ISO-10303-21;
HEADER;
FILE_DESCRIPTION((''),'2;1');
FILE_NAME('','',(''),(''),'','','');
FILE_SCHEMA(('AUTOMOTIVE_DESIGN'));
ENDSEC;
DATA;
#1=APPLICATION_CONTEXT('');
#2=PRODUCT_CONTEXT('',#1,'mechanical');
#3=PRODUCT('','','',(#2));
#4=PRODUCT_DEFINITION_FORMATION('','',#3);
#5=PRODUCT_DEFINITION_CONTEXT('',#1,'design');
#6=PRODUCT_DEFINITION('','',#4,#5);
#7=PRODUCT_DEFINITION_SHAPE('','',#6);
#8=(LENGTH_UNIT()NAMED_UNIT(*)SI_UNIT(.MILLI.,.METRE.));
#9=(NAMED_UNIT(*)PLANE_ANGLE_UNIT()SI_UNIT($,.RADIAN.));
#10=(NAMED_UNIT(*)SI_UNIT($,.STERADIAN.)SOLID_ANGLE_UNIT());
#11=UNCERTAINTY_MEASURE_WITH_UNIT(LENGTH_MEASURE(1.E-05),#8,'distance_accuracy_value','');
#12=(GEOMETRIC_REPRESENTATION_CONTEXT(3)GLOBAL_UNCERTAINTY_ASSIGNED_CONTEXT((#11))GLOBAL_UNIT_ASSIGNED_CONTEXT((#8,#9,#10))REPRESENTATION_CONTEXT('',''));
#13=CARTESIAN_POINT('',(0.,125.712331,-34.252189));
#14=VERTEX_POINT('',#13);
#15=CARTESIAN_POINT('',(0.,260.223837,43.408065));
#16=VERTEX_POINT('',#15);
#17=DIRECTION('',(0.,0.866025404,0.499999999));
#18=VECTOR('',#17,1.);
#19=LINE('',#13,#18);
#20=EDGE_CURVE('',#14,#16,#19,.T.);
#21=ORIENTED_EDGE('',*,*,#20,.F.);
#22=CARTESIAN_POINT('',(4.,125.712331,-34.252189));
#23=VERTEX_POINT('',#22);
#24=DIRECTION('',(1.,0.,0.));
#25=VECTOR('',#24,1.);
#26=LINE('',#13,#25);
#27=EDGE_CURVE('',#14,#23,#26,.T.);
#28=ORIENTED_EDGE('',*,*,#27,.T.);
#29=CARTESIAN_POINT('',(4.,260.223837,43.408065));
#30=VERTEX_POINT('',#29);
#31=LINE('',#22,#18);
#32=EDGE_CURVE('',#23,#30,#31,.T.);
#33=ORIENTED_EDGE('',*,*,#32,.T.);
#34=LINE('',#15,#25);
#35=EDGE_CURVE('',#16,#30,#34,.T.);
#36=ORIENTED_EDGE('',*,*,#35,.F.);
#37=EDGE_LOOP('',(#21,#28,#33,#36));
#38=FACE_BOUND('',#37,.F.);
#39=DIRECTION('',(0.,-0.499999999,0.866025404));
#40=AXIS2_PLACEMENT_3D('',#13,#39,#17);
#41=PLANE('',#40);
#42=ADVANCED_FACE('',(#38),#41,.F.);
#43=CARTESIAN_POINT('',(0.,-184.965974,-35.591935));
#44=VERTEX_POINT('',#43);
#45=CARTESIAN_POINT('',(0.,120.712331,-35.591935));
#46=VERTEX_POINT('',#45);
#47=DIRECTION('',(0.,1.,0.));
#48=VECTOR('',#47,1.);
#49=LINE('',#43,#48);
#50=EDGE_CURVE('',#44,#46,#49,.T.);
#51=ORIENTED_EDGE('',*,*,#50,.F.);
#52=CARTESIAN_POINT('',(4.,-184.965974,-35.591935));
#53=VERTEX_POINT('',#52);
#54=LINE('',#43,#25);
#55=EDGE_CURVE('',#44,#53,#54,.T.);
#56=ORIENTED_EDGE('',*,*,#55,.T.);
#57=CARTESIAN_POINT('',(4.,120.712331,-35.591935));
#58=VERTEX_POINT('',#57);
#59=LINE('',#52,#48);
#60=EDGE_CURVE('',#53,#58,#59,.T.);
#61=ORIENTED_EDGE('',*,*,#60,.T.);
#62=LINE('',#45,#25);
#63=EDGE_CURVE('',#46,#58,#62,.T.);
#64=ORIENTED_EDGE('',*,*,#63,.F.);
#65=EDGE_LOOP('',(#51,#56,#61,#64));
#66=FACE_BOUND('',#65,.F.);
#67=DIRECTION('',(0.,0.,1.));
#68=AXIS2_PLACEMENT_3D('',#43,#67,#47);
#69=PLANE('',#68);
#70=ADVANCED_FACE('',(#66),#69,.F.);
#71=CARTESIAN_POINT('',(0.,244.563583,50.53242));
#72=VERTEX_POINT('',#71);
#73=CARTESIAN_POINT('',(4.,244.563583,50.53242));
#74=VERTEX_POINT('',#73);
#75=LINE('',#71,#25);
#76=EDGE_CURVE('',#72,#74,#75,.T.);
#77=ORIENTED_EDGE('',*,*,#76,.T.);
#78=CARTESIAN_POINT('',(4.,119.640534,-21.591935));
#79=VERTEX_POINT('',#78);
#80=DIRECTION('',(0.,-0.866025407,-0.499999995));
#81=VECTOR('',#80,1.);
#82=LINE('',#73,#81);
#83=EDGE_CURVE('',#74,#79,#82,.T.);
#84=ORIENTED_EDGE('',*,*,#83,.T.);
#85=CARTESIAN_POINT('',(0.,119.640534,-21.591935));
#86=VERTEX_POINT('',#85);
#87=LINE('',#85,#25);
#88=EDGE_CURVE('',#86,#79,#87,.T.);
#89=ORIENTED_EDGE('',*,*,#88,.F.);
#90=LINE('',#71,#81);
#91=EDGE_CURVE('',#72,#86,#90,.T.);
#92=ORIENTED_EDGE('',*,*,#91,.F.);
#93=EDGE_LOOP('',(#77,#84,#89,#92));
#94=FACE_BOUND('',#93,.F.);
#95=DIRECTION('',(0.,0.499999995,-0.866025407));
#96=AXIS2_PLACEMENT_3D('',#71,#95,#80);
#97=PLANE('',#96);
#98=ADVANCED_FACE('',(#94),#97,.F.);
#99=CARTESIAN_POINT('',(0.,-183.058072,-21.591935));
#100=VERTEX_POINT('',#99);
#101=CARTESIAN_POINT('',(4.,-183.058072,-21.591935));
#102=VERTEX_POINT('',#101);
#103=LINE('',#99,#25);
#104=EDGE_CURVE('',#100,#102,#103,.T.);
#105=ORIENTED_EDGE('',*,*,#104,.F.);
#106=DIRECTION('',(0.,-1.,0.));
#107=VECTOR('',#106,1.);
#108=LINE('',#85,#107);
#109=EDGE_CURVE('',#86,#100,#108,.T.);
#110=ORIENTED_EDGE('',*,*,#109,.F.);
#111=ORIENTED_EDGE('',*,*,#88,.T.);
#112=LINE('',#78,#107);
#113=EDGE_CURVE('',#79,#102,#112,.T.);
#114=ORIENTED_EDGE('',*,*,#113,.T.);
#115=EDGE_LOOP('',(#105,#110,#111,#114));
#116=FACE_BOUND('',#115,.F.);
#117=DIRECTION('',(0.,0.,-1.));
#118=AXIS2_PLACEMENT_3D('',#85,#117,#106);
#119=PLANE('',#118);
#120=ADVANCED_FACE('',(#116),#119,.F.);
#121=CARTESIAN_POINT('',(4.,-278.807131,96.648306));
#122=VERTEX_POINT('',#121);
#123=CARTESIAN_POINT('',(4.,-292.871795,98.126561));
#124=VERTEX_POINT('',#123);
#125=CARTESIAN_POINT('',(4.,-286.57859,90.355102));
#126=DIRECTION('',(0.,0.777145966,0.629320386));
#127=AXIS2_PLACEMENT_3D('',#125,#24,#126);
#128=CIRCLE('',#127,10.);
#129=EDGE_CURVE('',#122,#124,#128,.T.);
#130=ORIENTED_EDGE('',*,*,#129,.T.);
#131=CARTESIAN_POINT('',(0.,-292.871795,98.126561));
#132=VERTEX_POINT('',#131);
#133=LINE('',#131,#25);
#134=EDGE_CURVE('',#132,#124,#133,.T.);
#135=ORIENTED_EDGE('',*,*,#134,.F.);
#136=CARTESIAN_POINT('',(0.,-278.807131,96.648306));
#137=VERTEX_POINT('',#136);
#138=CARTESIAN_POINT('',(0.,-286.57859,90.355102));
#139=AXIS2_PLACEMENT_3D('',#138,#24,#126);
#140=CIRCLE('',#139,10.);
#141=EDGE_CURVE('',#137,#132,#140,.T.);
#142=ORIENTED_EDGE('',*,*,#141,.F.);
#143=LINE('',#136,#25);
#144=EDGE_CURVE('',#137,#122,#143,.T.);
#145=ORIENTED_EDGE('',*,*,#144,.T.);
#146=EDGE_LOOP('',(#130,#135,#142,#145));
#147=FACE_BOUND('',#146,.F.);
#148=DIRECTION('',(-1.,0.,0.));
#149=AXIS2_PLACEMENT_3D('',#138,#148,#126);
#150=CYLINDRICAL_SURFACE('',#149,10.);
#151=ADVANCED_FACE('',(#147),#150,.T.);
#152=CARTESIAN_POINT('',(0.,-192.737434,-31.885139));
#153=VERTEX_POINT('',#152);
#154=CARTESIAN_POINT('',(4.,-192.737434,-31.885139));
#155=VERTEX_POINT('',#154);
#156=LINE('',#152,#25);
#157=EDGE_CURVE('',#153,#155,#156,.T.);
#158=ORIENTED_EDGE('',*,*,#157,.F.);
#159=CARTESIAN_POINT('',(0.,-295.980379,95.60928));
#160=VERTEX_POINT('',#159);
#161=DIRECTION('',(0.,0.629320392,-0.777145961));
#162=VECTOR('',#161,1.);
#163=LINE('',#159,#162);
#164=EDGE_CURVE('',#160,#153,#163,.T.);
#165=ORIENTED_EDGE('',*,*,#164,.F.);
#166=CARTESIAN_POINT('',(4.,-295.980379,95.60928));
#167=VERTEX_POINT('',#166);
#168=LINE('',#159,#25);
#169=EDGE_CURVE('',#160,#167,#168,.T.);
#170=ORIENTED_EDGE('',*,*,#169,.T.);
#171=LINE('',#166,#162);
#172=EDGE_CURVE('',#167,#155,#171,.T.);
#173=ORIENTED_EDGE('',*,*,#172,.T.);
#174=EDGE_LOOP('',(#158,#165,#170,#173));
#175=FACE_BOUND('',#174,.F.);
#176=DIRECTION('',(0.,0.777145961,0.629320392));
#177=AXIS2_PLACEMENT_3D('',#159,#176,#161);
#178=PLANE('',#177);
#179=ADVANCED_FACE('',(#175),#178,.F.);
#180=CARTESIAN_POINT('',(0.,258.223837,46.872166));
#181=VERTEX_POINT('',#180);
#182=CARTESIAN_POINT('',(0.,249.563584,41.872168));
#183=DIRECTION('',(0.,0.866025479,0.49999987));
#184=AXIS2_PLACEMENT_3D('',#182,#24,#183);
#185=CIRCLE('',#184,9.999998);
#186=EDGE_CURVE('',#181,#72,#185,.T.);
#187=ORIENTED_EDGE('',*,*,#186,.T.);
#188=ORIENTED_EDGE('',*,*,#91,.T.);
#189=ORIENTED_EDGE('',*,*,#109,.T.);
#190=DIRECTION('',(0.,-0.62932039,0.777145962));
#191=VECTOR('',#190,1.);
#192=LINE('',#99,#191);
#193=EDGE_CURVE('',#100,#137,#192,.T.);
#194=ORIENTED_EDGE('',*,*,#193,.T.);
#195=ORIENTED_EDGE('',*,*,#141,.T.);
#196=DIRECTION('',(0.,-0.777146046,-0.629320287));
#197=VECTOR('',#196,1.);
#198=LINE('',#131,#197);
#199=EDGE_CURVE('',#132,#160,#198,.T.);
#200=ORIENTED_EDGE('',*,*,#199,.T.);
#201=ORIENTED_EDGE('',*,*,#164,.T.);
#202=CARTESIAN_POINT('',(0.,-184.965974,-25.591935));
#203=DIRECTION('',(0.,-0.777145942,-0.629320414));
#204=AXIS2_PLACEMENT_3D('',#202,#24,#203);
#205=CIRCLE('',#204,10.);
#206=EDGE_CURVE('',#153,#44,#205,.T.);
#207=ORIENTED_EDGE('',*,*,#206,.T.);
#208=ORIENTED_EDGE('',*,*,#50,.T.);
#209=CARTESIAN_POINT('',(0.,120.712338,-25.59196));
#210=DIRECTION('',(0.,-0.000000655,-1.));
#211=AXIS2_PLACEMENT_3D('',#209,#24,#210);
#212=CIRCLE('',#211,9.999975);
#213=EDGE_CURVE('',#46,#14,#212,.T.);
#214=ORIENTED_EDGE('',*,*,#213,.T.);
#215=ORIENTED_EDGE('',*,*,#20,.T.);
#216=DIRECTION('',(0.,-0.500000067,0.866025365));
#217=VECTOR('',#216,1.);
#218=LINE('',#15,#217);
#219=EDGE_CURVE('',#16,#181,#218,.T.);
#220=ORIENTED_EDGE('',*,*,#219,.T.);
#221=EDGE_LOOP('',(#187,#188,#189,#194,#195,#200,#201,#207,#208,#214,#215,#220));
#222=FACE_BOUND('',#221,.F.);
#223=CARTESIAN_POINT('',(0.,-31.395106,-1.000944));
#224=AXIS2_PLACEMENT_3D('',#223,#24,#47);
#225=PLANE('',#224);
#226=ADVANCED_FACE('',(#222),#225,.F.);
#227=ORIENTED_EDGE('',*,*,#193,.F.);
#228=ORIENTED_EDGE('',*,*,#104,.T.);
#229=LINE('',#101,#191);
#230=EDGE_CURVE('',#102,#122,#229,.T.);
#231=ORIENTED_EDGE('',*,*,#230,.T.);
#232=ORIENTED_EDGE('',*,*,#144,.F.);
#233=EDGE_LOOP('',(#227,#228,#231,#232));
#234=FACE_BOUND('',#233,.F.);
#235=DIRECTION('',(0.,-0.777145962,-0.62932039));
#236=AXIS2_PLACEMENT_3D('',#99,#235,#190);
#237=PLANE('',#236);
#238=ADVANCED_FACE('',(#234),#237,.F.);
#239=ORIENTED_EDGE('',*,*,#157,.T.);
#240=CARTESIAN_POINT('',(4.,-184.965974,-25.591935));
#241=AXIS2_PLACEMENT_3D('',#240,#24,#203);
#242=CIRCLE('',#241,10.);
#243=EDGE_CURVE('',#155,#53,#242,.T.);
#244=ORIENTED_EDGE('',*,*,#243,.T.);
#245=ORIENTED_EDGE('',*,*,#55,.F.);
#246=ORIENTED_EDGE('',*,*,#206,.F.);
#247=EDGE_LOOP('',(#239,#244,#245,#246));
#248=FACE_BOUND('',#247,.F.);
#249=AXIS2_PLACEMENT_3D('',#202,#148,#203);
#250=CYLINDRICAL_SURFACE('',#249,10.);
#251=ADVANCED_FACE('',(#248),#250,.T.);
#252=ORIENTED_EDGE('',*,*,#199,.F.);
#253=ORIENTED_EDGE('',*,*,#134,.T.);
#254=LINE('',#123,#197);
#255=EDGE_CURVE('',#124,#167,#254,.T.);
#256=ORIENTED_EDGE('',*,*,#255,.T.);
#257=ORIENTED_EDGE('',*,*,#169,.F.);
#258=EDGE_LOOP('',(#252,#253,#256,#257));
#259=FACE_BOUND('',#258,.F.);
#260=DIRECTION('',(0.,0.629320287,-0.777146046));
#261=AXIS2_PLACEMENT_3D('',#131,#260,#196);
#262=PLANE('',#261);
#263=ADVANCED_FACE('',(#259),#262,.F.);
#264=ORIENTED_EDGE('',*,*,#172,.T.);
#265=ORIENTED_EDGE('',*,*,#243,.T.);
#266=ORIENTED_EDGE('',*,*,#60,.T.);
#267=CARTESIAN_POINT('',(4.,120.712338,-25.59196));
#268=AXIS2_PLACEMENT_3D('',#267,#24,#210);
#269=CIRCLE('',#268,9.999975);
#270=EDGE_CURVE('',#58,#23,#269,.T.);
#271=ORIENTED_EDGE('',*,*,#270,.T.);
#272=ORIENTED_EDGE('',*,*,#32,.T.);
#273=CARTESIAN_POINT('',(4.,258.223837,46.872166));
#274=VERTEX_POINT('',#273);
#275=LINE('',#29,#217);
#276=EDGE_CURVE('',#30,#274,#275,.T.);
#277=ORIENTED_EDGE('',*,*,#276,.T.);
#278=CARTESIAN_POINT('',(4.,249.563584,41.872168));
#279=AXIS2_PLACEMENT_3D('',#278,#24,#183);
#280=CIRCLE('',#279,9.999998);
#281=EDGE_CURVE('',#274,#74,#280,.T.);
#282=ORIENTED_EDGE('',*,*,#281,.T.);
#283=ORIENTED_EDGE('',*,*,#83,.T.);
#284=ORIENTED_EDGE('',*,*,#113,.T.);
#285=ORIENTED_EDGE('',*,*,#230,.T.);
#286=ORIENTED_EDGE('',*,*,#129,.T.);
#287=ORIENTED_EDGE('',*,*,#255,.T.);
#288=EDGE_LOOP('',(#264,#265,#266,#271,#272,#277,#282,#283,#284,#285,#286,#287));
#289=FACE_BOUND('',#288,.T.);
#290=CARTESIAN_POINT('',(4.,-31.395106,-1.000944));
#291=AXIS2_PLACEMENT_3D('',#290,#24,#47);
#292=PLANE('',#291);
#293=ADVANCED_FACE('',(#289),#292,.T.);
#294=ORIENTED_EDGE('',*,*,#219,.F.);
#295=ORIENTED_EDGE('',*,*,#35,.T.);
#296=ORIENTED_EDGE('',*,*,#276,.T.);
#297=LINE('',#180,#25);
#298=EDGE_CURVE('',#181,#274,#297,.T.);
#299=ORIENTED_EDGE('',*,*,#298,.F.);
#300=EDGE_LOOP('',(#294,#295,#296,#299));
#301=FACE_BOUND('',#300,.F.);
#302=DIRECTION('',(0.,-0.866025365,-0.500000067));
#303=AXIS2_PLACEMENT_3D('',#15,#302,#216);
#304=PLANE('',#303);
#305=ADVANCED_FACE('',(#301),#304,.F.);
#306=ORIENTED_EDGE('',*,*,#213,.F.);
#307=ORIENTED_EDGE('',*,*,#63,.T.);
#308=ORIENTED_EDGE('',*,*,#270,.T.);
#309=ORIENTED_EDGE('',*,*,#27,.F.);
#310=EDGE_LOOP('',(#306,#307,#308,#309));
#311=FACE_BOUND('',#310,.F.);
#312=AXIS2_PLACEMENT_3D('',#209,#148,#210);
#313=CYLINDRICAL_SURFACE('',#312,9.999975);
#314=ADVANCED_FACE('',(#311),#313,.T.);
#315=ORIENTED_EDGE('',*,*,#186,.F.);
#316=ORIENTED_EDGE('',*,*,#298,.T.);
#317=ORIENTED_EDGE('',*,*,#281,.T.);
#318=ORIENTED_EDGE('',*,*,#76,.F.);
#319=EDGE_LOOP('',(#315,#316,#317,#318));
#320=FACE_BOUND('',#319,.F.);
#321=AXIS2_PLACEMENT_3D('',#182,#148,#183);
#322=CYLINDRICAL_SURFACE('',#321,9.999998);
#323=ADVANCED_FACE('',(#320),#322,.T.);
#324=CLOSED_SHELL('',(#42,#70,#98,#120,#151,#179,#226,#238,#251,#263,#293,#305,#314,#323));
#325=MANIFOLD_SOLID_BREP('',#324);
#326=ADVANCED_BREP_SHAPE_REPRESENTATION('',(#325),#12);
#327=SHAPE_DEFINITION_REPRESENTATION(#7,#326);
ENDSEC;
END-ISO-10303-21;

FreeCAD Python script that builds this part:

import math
import FreeCAD as App
import Part
import Sketcher
Q = App.Units.Quantity

doc = App.newDocument("Part")
params = doc.addObject("Spreadsheet::Sheet", "Params")
for row, (alias, value) in enumerate([
    ("sketch1_radius", "10 mm"),
    ("sketch1_radius2", "10 mm"),
    ("sketch1_radius3", "9.999998 mm"),
    ("sketch1_length", "4 mm"),
    ("sketch1_length2", "3.999999 mm"),
    ("pad1_length", "4 mm"),
], start=1):
    params.set(f"A{row}", alias)
    params.set(f"B{row}", "=" + value)
    params.setAlias(f"B{row}", alias)

body = doc.addObject("PartDesign::Body", "Body")

sketch1 = doc.addObject("Sketcher::SketchObject", "Sketch")
body.addObject(sketch1)
sketch1.AttachmentSupport = (doc.YZ_Plane, [""])
sketch1.MapMode = "FlatFace"
sketch1.addGeometry(Part.LineSegment(App.Vector(119.640534, -21.591935, 0), App.Vector(-183.058072, -21.591935, 0)), False)
sketch1.addGeometry(Part.LineSegment(App.Vector(-183.058072, -21.591935, 0), App.Vector(-278.807131, 96.648306, 0)), False)
sketch1.addGeometry(Part.ArcOfCircle(Part.Circle(App.Vector(-286.57859, 90.355102, 0), App.Vector(0, 0, 1), 10), math.radians(39), math.radians(129.000006)), False)
sketch1.addGeometry(Part.LineSegment(App.Vector(-292.871795, 98.126561, 0), App.Vector(-295.980379, 95.60928, 0)), False)
sketch1.addGeometry(Part.LineSegment(App.Vector(-295.980379, 95.60928, 0), App.Vector(-192.737434, -31.885139, 0)), False)
sketch1.addGeometry(Part.ArcOfCircle(Part.Circle(App.Vector(-184.965974, -25.591935, 0), App.Vector(0, 0, 1), 10), math.radians(-140.999998), math.radians(-89.999998)), False)
sketch1.addGeometry(Part.LineSegment(App.Vector(-184.965974, -35.591935, 0), App.Vector(120.712331, -35.591935, 0)), False)
sketch1.addGeometry(Part.ArcOfCircle(Part.Circle(App.Vector(120.712338, -25.59196, 0), App.Vector(0, 0, 1), 9.999975), math.radians(-90.000038), math.radians(-59.999962)), False)
sketch1.addGeometry(Part.LineSegment(App.Vector(125.712331, -34.252189, 0), App.Vector(260.223837, 43.408065, 0)), False)
sketch1.addGeometry(Part.LineSegment(App.Vector(260.223837, 43.408065, 0), App.Vector(258.223837, 46.872166, 0)), False)
sketch1.addGeometry(Part.ArcOfCircle(Part.Circle(App.Vector(249.563584, 41.872168, 0), App.Vector(0, 0, 1), 9.999998), math.radians(29.999991), math.radians(120.000009)), False)
sketch1.addGeometry(Part.LineSegment(App.Vector(244.563583, 50.53242, 0), App.Vector(119.640534, -21.591935, 0)), False)
sketch1.addConstraint(Sketcher.Constraint("Coincident", 0, 2, 1, 1))
sketch1.addConstraint(Sketcher.Constraint("Coincident", 1, 2, 2, 1))
sketch1.addConstraint(Sketcher.Constraint("Coincident", 2, 2, 3, 1))
sketch1.addConstraint(Sketcher.Constraint("Coincident", 3, 2, 4, 1))
sketch1.addConstraint(Sketcher.Constraint("Coincident", 4, 2, 5, 1))
sketch1.addConstraint(Sketcher.Constraint("Coincident", 5, 2, 6, 1))
sketch1.addConstraint(Sketcher.Constraint("Coincident", 6, 2, 7, 1))
sketch1.addConstraint(Sketcher.Constraint("Coincident", 7, 2, 8, 1))
sketch1.addConstraint(Sketcher.Constraint("Coincident", 8, 2, 9, 1))
sketch1.addConstraint(Sketcher.Constraint("Coincident", 9, 2, 10, 1))
sketch1.addConstraint(Sketcher.Constraint("Coincident", 10, 2, 11, 1))
sketch1.addConstraint(Sketcher.Constraint("Coincident", 11, 2, 0, 1))
sketch1.addConstraint(Sketcher.Constraint("Horizontal", 0))
sketch1.addConstraint(Sketcher.Constraint("Horizontal", 6))
sketch1.addConstraint(Sketcher.Constraint("Radius", 2, Q("10 mm")))
sketch1.addConstraint(Sketcher.Constraint("Radius", 5, Q("10 mm")))
sketch1.addConstraint(Sketcher.Constraint("Radius", 10, Q("9.999998 mm")))
sketch1.addConstraint(Sketcher.Constraint("Distance", 3, Q("4 mm")))
sketch1.addConstraint(Sketcher.Constraint("Distance", 9, Q("3.999999 mm")))
sketch1.addConstraint(Sketcher.Constraint("DistanceY", 5, 3, 0, 2, Q("4 mm")))
sketch1.addConstraint(Sketcher.Constraint("DistanceX", 6, 2, 7, 2, Q("5 mm")))
sketch1.addConstraint(Sketcher.Constraint("DistanceY", 6, 2, 8, 2, Q("79 mm")))
sketch1.addConstraint(Sketcher.Constraint("DistanceX", 9, 2, 8, 2, Q("2 mm")))
sketch1.addConstraint(Sketcher.Constraint("DistanceX", 10, 2, 10, 3, Q("5.000001 mm")))
sketch1.addConstraint(Sketcher.Constraint("Radius", 7, Q("9.999975 mm")))
sketch1.addConstraint(Sketcher.Constraint("DistanceX", 5, 2, 0, 2, Q("1.907902 mm")))
sketch1.addConstraint(Sketcher.Constraint("DistanceX", 7, 3, 8, 2, Q("139.511499 mm")))
sketch1.addConstraint(Sketcher.Constraint("Distance", 1, Q("152.146761 mm")))
sketch1.addConstraint(Sketcher.Constraint("Distance", 8, Q("155.320508 mm")))
sketch1.addConstraint(Sketcher.Constraint("Distance", 11, Q("144.248711 mm")))
sketch1.addConstraint(Sketcher.Constraint("DistanceX", 0, 2, 0, 1, Q("302.698606 mm")))
sketch1.addConstraint(Sketcher.Constraint("DistanceX", 2, 3, -1, 1, Q("286.57859 mm")))
sketch1.addConstraint(Sketcher.Constraint("DistanceY", 7, 3, -1, 1, Q("25.59196 mm")))
sketch1.addConstraint(Sketcher.Constraint("DistanceY", -1, 1, 10, 3, Q("41.872168 mm")))
sketch1.addConstraint(Sketcher.Constraint("DistanceX", 1, 2, -1, 1, Q("278.807131 mm")))
sketch1.addConstraint(Sketcher.Constraint("DistanceY", -1, 1, 2, 2, Q("98.126561 mm")))
sketch1.addConstraint(Sketcher.Constraint("DistanceX", 3, 2, -1, 1, Q("295.980379 mm")))
sketch1.addConstraint(Sketcher.Constraint("DistanceY", -1, 1, 3, 2, Q("95.60928 mm")))
sketch1.addConstraint(Sketcher.Constraint("DistanceY", 4, 2, -1, 1, Q("31.885139 mm")))
sketch1.addConstraint(Sketcher.Constraint("DistanceX", 5, 3, 7, 3, Q("305.678312 mm")))
sketch1.setExpression("Constraints[14]", "Params.sketch1_radius")
sketch1.setExpression("Constraints[15]", "Params.sketch1_radius2")
sketch1.setExpression("Constraints[16]", "Params.sketch1_radius3")
sketch1.setExpression("Constraints[17]", "Params.sketch1_length")
sketch1.setExpression("Constraints[18]", "Params.sketch1_length2")
pad1 = doc.addObject("PartDesign::Pad", "Pad")
body.addObject(pad1)
pad1.Profile = sketch1
pad1.setExpression("Length", "Params.pad1_length")

doc.recompute()
